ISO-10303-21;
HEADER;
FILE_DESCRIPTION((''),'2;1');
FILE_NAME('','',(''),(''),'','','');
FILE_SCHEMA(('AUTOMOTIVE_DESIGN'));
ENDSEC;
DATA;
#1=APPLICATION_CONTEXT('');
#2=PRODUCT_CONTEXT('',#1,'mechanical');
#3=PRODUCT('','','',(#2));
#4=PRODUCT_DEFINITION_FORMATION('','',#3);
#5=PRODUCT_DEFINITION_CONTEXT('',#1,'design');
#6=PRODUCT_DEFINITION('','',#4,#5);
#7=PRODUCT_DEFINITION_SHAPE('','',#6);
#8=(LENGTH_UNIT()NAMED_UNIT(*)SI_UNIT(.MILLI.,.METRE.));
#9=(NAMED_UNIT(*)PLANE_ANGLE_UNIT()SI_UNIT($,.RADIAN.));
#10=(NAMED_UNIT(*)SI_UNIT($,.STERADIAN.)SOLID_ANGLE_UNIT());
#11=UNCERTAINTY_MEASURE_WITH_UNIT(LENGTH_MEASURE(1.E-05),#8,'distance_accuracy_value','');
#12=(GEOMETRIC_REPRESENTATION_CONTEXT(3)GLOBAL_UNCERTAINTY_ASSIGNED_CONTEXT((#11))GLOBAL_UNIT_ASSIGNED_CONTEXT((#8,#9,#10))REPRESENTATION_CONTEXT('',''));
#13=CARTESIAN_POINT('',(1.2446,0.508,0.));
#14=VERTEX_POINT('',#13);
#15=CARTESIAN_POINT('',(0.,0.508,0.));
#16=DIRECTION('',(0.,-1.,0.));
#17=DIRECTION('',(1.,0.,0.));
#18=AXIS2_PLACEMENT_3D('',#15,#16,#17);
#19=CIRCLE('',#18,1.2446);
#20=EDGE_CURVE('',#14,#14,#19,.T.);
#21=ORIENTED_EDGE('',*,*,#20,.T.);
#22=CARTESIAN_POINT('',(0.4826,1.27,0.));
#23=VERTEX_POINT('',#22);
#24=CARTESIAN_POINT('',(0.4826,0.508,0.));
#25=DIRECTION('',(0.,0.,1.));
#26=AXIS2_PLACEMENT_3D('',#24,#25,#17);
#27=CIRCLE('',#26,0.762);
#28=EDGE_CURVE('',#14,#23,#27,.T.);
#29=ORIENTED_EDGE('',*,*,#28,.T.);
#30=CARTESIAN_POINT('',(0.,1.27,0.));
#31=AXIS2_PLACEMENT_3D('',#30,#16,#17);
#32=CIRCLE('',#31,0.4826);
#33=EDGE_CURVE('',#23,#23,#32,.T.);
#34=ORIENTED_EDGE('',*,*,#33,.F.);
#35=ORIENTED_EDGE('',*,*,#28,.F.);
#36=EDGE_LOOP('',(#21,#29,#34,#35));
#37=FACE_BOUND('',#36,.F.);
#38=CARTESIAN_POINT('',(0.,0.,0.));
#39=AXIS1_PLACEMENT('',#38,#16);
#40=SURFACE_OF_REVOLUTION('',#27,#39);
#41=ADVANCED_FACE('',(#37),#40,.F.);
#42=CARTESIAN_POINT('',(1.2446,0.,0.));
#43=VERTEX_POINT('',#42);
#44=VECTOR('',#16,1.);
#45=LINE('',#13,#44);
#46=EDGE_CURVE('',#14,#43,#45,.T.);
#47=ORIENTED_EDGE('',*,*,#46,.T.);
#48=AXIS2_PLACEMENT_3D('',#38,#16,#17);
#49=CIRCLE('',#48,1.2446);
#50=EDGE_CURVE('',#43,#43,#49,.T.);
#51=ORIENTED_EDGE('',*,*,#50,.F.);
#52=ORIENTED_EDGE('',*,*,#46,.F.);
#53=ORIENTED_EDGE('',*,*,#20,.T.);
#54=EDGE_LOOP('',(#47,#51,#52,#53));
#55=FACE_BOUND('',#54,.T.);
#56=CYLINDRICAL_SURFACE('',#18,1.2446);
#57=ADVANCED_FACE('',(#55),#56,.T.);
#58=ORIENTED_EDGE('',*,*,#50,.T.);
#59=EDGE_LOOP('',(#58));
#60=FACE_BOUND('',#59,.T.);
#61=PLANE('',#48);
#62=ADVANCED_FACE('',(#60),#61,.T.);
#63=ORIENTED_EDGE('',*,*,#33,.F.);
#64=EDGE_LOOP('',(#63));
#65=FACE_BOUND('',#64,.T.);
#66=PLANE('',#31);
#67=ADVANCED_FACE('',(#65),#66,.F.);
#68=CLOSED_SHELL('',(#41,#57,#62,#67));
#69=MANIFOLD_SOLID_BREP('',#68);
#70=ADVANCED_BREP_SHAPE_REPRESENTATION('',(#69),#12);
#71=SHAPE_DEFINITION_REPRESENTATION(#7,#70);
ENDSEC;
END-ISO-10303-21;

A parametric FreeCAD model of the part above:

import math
import FreeCAD as App
import Part
import Sketcher
from FreeCAD import Vector
Q = App.Units.Quantity

doc = App.newDocument("Part")
body = doc.addObject("PartDesign::Body", "Body")

# Sketch on XY plane
sketch1 = body.newObject("Sketcher::SketchObject", "Sketch")
sketch1.AttachmentSupport = (doc.getObject("XY_Plane"), [""])
sketch1.MapMode = "FlatFace"
sketch1.addGeometry(Part.LineSegment(Vector(0, 1.27, 0), Vector(0, 0, 0)), False)
sketch1.addGeometry(Part.LineSegment(Vector(0, 0, 0), Vector(1.2446, 0, 0)), False)
sketch1.addGeometry(Part.LineSegment(Vector(1.2446, 0, 0), Vector(1.2446, 0.508, 0)), False)
sketch1.addGeometry(Part.ArcOfCircle(Part.Circle(Vector(0.4826, 0.508, 0), Vector(0, 0, 1), 0.762), math.radians(0), math.radians(90)), False)
sketch1.addGeometry(Part.LineSegment(Vector(0.4826, 1.27, 0), Vector(0, 1.27, 0)), False)
sketch1.addConstraint(Sketcher.Constraint("Coincident", 0, 2, 1, 1))
sketch1.addConstraint(Sketcher.Constraint("Coincident", 1, 2, 2, 1))
sketch1.addConstraint(Sketcher.Constraint("Tangent", 2, 2, 3, 1))
sketch1.addConstraint(Sketcher.Constraint("Tangent", 3, 2, 4, 1))
sketch1.addConstraint(Sketcher.Constraint("Coincident", 4, 2, 0, 1))
sketch1.addConstraint(Sketcher.Constraint("Vertical", 0))
sketch1.addConstraint(Sketcher.Constraint("Horizontal", 1))
sketch1.addConstraint(Sketcher.Constraint("Vertical", 2))
sketch1.addConstraint(Sketcher.Constraint("Horizontal", 4))
sketch1.addConstraint(Sketcher.Constraint("Coincident", 0, 2, -1, 1))
sketch1.addConstraint(Sketcher.Constraint("Radius", 3, Q("0.03 in")))
sketch1.addConstraint(Sketcher.Constraint("DistanceY", 0, 2, 0, 1, Q("0.05 in")))
sketch1.addConstraint(Sketcher.Constraint("DistanceX", 1, 1, 1, 2, Q("0.049 in")))
revolution = body.newObject("PartDesign::Revolution", "Revolution")
revolution.Profile = sketch1
revolution.ReferenceAxis = (sketch1, ["V_Axis"])
revolution.Angle = 360

doc.recompute()
